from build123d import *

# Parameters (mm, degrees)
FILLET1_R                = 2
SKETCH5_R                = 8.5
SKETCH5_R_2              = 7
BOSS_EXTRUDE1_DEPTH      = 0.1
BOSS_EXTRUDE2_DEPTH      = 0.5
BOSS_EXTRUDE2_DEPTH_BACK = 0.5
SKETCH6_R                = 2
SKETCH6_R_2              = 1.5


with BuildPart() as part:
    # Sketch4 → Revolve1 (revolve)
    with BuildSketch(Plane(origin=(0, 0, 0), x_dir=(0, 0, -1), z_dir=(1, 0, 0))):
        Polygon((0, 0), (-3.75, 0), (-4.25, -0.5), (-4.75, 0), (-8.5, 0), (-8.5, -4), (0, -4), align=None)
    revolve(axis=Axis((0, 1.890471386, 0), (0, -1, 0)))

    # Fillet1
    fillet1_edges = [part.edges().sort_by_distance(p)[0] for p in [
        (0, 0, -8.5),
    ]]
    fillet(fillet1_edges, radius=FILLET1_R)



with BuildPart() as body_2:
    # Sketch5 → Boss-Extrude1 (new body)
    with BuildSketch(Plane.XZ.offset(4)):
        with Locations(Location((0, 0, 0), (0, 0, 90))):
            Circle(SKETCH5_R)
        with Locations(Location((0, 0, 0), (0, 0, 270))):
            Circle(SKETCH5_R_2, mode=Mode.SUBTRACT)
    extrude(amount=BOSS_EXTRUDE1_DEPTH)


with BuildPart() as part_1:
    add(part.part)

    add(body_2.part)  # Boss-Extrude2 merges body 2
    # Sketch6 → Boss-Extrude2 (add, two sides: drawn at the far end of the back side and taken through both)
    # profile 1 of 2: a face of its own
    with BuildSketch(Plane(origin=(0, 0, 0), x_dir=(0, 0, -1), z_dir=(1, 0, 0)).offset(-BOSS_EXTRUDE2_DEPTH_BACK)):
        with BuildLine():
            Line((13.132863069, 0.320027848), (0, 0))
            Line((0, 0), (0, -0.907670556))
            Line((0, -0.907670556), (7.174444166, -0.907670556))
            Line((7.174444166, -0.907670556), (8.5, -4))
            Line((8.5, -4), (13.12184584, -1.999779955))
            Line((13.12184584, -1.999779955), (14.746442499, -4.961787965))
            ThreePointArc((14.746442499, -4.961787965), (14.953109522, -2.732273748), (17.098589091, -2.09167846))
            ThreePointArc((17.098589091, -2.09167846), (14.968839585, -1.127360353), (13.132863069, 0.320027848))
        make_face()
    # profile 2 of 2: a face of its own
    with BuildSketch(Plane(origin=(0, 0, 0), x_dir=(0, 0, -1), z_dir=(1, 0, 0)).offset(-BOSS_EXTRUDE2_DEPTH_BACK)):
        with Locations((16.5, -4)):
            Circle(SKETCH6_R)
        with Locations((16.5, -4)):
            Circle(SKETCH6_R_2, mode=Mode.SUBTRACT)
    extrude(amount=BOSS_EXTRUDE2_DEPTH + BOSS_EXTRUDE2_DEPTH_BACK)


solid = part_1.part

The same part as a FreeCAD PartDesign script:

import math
import FreeCAD as App
import Part
import Sketcher

V = App.Vector
Q = App.Units.Quantity


def edges_at(feature, points):
    """Names of the edges that pass closest to the given points."""
    edges = feature.Shape.Edges
    near = lambda p: min(range(len(edges)), key=lambda i: edges[i].distToShape(Part.Vertex(*p))[0])
    return sorted({f"Edge{near(p) + 1}" for p in points})

doc = App.newDocument("Part")
body = doc.addObject("PartDesign::Body", "Body")

# Sketch on YZ plane
sketch1 = doc.addObject("Sketcher::SketchObject", "Sketch")
body.addObject(sketch1)
sketch1.AttachmentSupport = (doc.YZ_Plane, [""])
sketch1.MapMode = "FlatFace"
sketch1.addGeometry([
    Part.LineSegment(V(0, 0, 0), V(0, 3.8, 0)),  # 0
    Part.LineSegment(V(0, 3.8, 0), V(-0.5, 4.2, 0)),  # 1
    Part.LineSegment(V(-0.5, 4.2, 0), V(0, 4.8, 0)),  # 2
    Part.LineSegment(V(0, 4.8, 0), V(0, 8.5, 0)),  # 3
    Part.LineSegment(V(0, 8.5, 0), V(-4, 8.5, 0)),  # 4
    Part.LineSegment(V(-4, 8.5, 0), V(-4, 0, 0)),  # 5
    Part.LineSegment(V(-4, 0, 0), V(0, 0, 0)),  # 6
], False)
sketch1.addConstraint([
    Sketcher.Constraint("Coincident", 0, 2, 1, 1),
    Sketcher.Constraint("Coincident", 1, 2, 2, 1),
    Sketcher.Constraint("Coincident", 2, 2, 3, 1),
    Sketcher.Constraint("Coincident", 3, 2, 4, 1),
    Sketcher.Constraint("Coincident", 4, 2, 5, 1),
    Sketcher.Constraint("Coincident", 5, 2, 6, 1),
    Sketcher.Constraint("Coincident", 6, 2, 0, 1),
    Sketcher.Constraint("Vertical", 0),
    Sketcher.Constraint("Vertical", 3),
    Sketcher.Constraint("Horizontal", 4),
    Sketcher.Constraint("Vertical", 5),
    Sketcher.Constraint("Horizontal", 6),
    Sketcher.Constraint("Coincident", 6, 2, -1, 1),
    Sketcher.Constraint("PointOnObject", 2, 2, -2),
    Sketcher.Constraint("Perpendicular", 1, 2),
    Sketcher.Constraint("Equal", 0, 3),
    Sketcher.Constraint("Equal", 1, 2),
    Sketcher.Constraint("DistanceX", 4, 2, 4, 1, Q("4 mm")),
    Sketcher.Constraint("DistanceY", 5, 2, 5, 1, Q("8.5 mm")),
    Sketcher.Constraint("DistanceY", 0, 2, 2, 2, Q("1 mm")),
])
revolution = doc.addObject("PartDesign::Revolution", "Revolution")
body.addObject(revolution)
revolution.Profile = sketch1
revolution.ReferenceAxis = (sketch1, ["H_Axis"])
revolution.Angle = 360
doc.recompute()

fillet = doc.addObject("PartDesign::Fillet", "Fillet")
body.addObject(fillet)
fillet.Base = (revolution, edges_at(revolution, [(0, 0, -8.5)]))
fillet.Radius = 2
body2 = doc.addObject("PartDesign::Body", "Body001")

# Sketch on XZ plane
sketch2 = doc.addObject("Sketcher::SketchObject", "Sketch001")
body2.addObject(sketch2)
sketch2.AttachmentSupport = (doc.getObject("XZ_Plane001"), [""])
sketch2.MapMode = "FlatFace"
sketch2.AttachmentOffset = App.Placement(V(0, 0, 4), App.Rotation())
sketch2.addGeometry([
    Part.Circle(V(0, 0, 0), V(0, 0, 1), 8),
    Part.Circle(V(0, 0, 0), V(0, 0, 1), 7),
], False)
sketch2.addConstraint([
    Sketcher.Constraint("Coincident", 0, 3, -1, 1),
    Sketcher.Constraint("Coincident", 1, 3, -1, 1),
    Sketcher.Constraint("Diameter", 0, Q("17 mm")),
    Sketcher.Constraint("Diameter", 1, Q("14 mm")),
])
pad1 = doc.addObject("PartDesign::Pad", "Pad")
body2.addObject(pad1)
pad1.Profile = sketch2
pad1.Length = 0.1
doc.recompute()

boolean = doc.addObject("PartDesign::Boolean", "Boolean")
body.addObject(boolean)
boolean.Type = "Fuse"
boolean.addObjects([body2])

# Sketch on YZ plane
sketch3 = doc.addObject("Sketcher::SketchObject", "Sketch002")
body.addObject(sketch3)
sketch3.AttachmentSupport = (doc.YZ_Plane, [""])
sketch3.MapMode = "FlatFace"
sketch3.addGeometry([
    Part.LineSegment(V(0.320028, -13.132863, 0), V(0, 0, 0)),  # 0
    Part.LineSegment(V(0, 0, 0), V(-0.907671, 0, 0)),  # 1
    Part.LineSegment(V(-0.907671, 0, 0), V(-0.907671, -7.174444, 0)),  # 2
    Part.LineSegment(V(-0.907671, -7.174444, 0), V(-4, -8.5, 0)),  # 3
    Part.LineSegment(V(-4, -8.5, 0), V(-1.99978, -13.121846, 0)),  # 4
    Part.LineSegment(V(-1.99978, -13.121846, 0), V(-4.961788, -14.746442, 0)),  # 5
    Part.ArcOfCircle(Part.Circle(V(-4, -16.5, 0), V(0, 0, 1), 2), math.radians(118.743806), math.radians(342.584763)),  # 6
    Part.ArcOfCircle(Part.Circle(V(7.132486, -19.991961, 0), V(0, 0, 1), 9.667307), math.radians(134.80454), math.radians(162.584763)),  # 7
    Part.Circle(V(-4, -16.5, 0), V(0, 0, 1), 1.5),  # 8
], False)
sketch3.addConstraint([
    Sketcher.Constraint("Coincident", 0, 2, 1, 1),
    Sketcher.Constraint("Coincident", 1, 2, 2, 1),
    Sketcher.Constraint("Coincident", 2, 2, 3, 1),
    Sketcher.Constraint("Coincident", 3, 2, 4, 1),
    Sketcher.Constraint("Coincident", 4, 2, 5, 1),
    Sketcher.Constraint("Coincident", 5, 2, 6, 1),
    Sketcher.Constraint("Coincident", 6, 2, 7, 2),
    Sketcher.Constraint("Coincident", 7, 1, 0, 1),
    Sketcher.Constraint("Horizontal", 1),
    Sketcher.Constraint("Vertical", 2),
    Sketcher.Constraint("Coincident", 0, 2, -1, 1),
    Sketcher.Constraint("Coincident", 8, 3, 6, 3),
    Sketcher.Constraint("Diameter", 8, Q("3 mm")),
    Sketcher.Constraint("Radius", 6, Q("2 mm")),
    Sketcher.Constraint("DistanceX", 6, 3, -1, 1, Q("4 mm")),
    Sketcher.Constraint("DistanceX", 3, 2, -1, 1, Q("4 mm")),
    Sketcher.Constraint("DistanceY", 6, 3, 3, 2, Q("8 mm")),
    Sketcher.Constraint("DistanceY", 6, 3, -1, 1, Q("16.5 mm")),
    Sketcher.Constraint("Radius", 7, Q("9.667307 mm")),
    Sketcher.Constraint("DistanceY", 5, 2, 2, 2, Q("7.571998 mm")),
    Sketcher.Constraint("DistanceX", 1, 2, 1, 1, Q("0.907671 mm")),
    Sketcher.Constraint("DistanceY", 4, 2, 2, 2, Q("5.947402 mm")),
    Sketcher.Constraint("DistanceX", 6, 2, 4, 2, Q("0.091899 mm")),
    Sketcher.Constraint("Distance", 0, Q("13.136762 mm")),
    Sketcher.Constraint("Distance", 3, Q("3.364461 mm")),
    Sketcher.Constraint("DistanceY", 7, 3, -1, 1, Q("19.991961 mm")),
    Sketcher.Constraint("DistanceX", 4, 2, -1, 1, Q("1.99978 mm")),
])
pad2 = doc.addObject("PartDesign::Pad", "Pad001")
body.addObject(pad2)
pad2.Profile = sketch3
pad2.Type = "TwoLengths"
pad2.Length = 0.5
pad2.Length2 = 0.5

doc.recompute()
